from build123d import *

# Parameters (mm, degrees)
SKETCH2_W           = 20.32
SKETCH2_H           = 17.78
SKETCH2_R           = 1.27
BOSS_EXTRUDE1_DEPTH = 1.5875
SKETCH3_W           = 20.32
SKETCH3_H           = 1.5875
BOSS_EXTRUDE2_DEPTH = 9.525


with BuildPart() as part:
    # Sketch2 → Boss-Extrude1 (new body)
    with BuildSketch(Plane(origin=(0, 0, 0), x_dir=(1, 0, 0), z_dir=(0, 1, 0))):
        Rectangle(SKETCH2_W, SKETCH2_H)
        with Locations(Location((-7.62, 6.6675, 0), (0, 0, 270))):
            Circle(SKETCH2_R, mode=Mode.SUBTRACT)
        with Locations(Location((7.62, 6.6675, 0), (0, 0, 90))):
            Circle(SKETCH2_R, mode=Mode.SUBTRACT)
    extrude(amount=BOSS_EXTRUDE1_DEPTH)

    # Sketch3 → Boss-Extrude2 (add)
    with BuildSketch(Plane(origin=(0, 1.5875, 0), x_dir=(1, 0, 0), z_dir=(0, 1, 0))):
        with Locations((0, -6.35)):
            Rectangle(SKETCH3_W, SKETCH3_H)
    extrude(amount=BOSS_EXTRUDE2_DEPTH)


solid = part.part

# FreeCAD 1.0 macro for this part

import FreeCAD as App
import Part
import Sketcher

V = App.Vector
Q = App.Units.Quantity


def add_polygon(sketch, points):
    """Adds a closed chain of lines whose ends are joined by coincident constraints."""
    first, n = sketch.GeometryCount, len(points)
    for a, b in zip(points, points[1:] + points[:1]):
        sketch.addGeometry(Part.LineSegment(App.Vector(*a, 0), App.Vector(*b, 0)), False)
    for i in range(n):
        sketch.addConstraint(Sketcher.Constraint("Coincident", first + i, 2, first + (i + 1) % n, 1))

doc = App.newDocument("Part")
body = doc.addObject("PartDesign::Body", "Body")

# Sketch on XZ plane
sketch1 = body.newObject("Sketcher::SketchObject", "Sketch")
sketch1.AttachmentSupport = (doc.getObject("XZ_Plane"), [""])
sketch1.MapMode = "FlatFace"
add_polygon(sketch1, [(-10.2, -8.9), (-10.2, 8.9), (10.2, 8.9), (10.2, -8.9)])  # lines 0-3
sketch1.addGeometry(Part.Circle(V(-7.6, -6.7, 0), V(0, 0, 1), 1.3), False)  # 4
sketch1.addGeometry(Part.Circle(V(7.6, -6.7, 0), V(0, 0, 1), 1.3), False)  # 5
sketch1.addConstraint(Sketcher.Constraint("Vertical", 0))
sketch1.addConstraint(Sketcher.Constraint("Horizontal", 1))
sketch1.addConstraint(Sketcher.Constraint("Vertical", 2))
sketch1.addConstraint(Sketcher.Constraint("Horizontal", 3))
sketch1.addConstraint(Sketcher.Constraint("Equal", 4, 5))
sketch1.addConstraint(Sketcher.Constraint("Symmetric", 0, 2, 2, 2, -1, 1))
sketch1.addConstraint(Sketcher.Constraint("Symmetric", 4, 3, 5, 3, -2))
sketch1.addConstraint(Sketcher.Constraint("Diameter", 4, Q("0.1 in")))
sketch1.addConstraint(Sketcher.Constraint("DistanceX", 1, 1, 1, 2, Q("0.8 in")))
sketch1.addConstraint(Sketcher.Constraint("DistanceY", 0, 1, 0, 2, Q("0.7 in")))
sketch1.addConstraint(Sketcher.Constraint("DistanceX", 4, 3, -1, 1, Q("0.3 in")))
sketch1.addConstraint(Sketcher.Constraint("DistanceY", 4, 3, -1, 1, Q("0.2625 in")))
pad1 = body.newObject("PartDesign::Pad", "Pad")
pad1.Profile = sketch1
pad1.Length = Q("0.0625 in")
pad1.Reversed = True

# Sketch on XZ plane
sketch2 = body.newObject("Sketcher::SketchObject", "Sketch001")
sketch2.AttachmentSupport = (doc.getObject("XZ_Plane"), [""])
sketch2.MapMode = "FlatFace"
sketch2.AttachmentOffset = App.Placement(V(0, 0, -0.0625 * 25.4), App.Rotation())
add_polygon(sketch2, [(-10.2, 5.6), (-10.2, 7.1), (10.2, 7.1), (10.2, 5.6)])  # lines 0-3
sketch2.addConstraint(Sketcher.Constraint("Vertical", 0))
sketch2.addConstraint(Sketcher.Constraint("Horizontal", 1))
sketch2.addConstraint(Sketcher.Constraint("Vertical", 2))
sketch2.addConstraint(Sketcher.Constraint("Horizontal", 3))
sketch2.addConstraint(Sketcher.Constraint("DistanceX", 1, 1, 1, 2, Q("0.8 in")))
sketch2.addConstraint(Sketcher.Constraint("DistanceX", 0, 2, -1, 1, Q("0.4 in")))
sketch2.addConstraint(Sketcher.Constraint("DistanceY", 0, 1, 0, 2, Q("0.0625 in")))
sketch2.addConstraint(Sketcher.Constraint("DistanceY", -1, 1, 0, 2, Q("0.28125 in")))
pad2 = body.newObject("PartDesign::Pad", "Pad001")
pad2.Profile = sketch2
pad2.Length = Q("0.375 in")
pad2.Reversed = True

doc.recompute()
